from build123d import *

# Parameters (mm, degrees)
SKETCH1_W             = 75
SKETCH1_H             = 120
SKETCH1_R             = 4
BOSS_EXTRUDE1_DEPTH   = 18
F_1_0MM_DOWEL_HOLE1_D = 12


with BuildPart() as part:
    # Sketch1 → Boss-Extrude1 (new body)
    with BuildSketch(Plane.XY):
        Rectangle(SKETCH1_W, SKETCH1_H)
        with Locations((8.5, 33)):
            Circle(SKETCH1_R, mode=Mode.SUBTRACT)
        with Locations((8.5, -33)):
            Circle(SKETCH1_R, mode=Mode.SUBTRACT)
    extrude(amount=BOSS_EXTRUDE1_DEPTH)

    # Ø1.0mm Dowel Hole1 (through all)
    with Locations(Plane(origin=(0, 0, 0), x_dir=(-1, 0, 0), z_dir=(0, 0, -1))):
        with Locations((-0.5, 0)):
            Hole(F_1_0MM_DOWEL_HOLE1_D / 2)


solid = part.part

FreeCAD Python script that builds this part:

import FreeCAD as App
import Part
import Sketcher


def add_polygon(sketch, points):
    """Adds a closed chain of lines whose ends are joined by coincident constraints."""
    first, n = sketch.GeometryCount, len(points)
    for a, b in zip(points, points[1:] + points[:1]):
        sketch.addGeometry(Part.LineSegment(App.Vector(*a, 0), App.Vector(*b, 0)), False)
    for i in range(n):
        sketch.addConstraint(Sketcher.Constraint("Coincident", first + i, 2, first + (i + 1) % n, 1))

doc = App.newDocument("Part")
params = doc.addObject("Spreadsheet::Sheet", "Params")
for row, (alias, value) in enumerate([
    ("sketch1_diameter", "8 mm"),
    ("sketch1_width", "75 mm"),
    ("sketch1_height", "120 mm"),
    ("pad1_length", "18 mm"),
    ("sketch2_diameter", "12 mm"),
    ("hole_diameter", "12 mm"),
], start=1):
    params.set(f"A{row}", alias)
    params.set(f"B{row}", "=" + value)
    params.setAlias(f"B{row}", alias)

body = doc.addObject("PartDesign::Body", "Body")

sketch1 = doc.addObject("Sketcher::SketchObject", "Sketch")
body.addObject(sketch1)
sketch1.AttachmentSupport = (doc.XY_Plane, [""])
sketch1.MapMode = "FlatFace"
add_polygon(sketch1, [(-37.5, 60), (-37.5, -60), (37.5, -60), (37.5, 60)])
sketch1.addGeometry(Part.Circle(App.Vector(8.5, -33, 0), App.Vector(0, 0, 1), 4), False)
sketch1.addGeometry(Part.Circle(App.Vector(8.5, 33, 0), App.Vector(0, 0, 1), 4), False)
sketch1.addConstraint(Sketcher.Constraint("Vertical", 0))
sketch1.addConstraint(Sketcher.Constraint("Horizontal", 1))
sketch1.addConstraint(Sketcher.Constraint("Vertical", 2))
sketch1.addConstraint(Sketcher.Constraint("Horizontal", 3))
sketch1.addConstraint(Sketcher.Constraint("Equal", 4, 5))
sketch1.addConstraint(Sketcher.Constraint("Symmetric", 0, 2, 2, 2, -1, 1))
sketch1.addConstraint(Sketcher.Constraint("Symmetric", 4, 3, 5, 3, -1))
sketch1.addConstraint(Sketcher.Constraint("Diameter", 4, 8.0))
sketch1.addConstraint(Sketcher.Constraint("DistanceX", 1, 1, 1, 2, 75.0))
sketch1.addConstraint(Sketcher.Constraint("DistanceY", 0, 2, 0, 1, 120.0))
sketch1.addConstraint(Sketcher.Constraint("DistanceY", 4, 3, -1, 1, 33.0))
sketch1.addConstraint(Sketcher.Constraint("DistanceX", 0, 2, 4, 3, 46.0))
sketch1.setExpression("Constraints[11]", "Params.sketch1_diameter")
sketch1.setExpression("Constraints[12]", "Params.sketch1_width")
sketch1.setExpression("Constraints[13]", "Params.sketch1_height")
pad1 = doc.addObject("PartDesign::Pad", "Pad")
body.addObject(pad1)
pad1.Profile = sketch1
pad1.setExpression("Length", "Params.pad1_length")

sketch2 = doc.addObject("Sketcher::SketchObject", "Sketch001")
body.addObject(sketch2)
sketch2.AttachmentSupport = (doc.XY_Plane, [""])
sketch2.MapMode = "FlatFace"
sketch2.addGeometry(Part.Circle(App.Vector(0.5, 0, 0), App.Vector(0, 0, 1), 6), False)
sketch2.addConstraint(Sketcher.Constraint("PointOnObject", 0, 3, -1))
sketch2.addConstraint(Sketcher.Constraint("Diameter", 0, 12.0))
sketch2.addConstraint(Sketcher.Constraint("DistanceX", -1, 1, 0, 3, 0.5))
sketch2.setExpression("Constraints[1]", "Params.sketch2_diameter")
doc.recompute()
hole = doc.addObject("PartDesign::Hole", "Hole")
body.addObject(hole)
hole.Profile = sketch2
hole.ThreadType = "None"
hole.setExpression("Diameter", "Params.hole_diameter")
hole.DepthType = "ThroughAll"
hole.Reversed = True

doc.recompute()
